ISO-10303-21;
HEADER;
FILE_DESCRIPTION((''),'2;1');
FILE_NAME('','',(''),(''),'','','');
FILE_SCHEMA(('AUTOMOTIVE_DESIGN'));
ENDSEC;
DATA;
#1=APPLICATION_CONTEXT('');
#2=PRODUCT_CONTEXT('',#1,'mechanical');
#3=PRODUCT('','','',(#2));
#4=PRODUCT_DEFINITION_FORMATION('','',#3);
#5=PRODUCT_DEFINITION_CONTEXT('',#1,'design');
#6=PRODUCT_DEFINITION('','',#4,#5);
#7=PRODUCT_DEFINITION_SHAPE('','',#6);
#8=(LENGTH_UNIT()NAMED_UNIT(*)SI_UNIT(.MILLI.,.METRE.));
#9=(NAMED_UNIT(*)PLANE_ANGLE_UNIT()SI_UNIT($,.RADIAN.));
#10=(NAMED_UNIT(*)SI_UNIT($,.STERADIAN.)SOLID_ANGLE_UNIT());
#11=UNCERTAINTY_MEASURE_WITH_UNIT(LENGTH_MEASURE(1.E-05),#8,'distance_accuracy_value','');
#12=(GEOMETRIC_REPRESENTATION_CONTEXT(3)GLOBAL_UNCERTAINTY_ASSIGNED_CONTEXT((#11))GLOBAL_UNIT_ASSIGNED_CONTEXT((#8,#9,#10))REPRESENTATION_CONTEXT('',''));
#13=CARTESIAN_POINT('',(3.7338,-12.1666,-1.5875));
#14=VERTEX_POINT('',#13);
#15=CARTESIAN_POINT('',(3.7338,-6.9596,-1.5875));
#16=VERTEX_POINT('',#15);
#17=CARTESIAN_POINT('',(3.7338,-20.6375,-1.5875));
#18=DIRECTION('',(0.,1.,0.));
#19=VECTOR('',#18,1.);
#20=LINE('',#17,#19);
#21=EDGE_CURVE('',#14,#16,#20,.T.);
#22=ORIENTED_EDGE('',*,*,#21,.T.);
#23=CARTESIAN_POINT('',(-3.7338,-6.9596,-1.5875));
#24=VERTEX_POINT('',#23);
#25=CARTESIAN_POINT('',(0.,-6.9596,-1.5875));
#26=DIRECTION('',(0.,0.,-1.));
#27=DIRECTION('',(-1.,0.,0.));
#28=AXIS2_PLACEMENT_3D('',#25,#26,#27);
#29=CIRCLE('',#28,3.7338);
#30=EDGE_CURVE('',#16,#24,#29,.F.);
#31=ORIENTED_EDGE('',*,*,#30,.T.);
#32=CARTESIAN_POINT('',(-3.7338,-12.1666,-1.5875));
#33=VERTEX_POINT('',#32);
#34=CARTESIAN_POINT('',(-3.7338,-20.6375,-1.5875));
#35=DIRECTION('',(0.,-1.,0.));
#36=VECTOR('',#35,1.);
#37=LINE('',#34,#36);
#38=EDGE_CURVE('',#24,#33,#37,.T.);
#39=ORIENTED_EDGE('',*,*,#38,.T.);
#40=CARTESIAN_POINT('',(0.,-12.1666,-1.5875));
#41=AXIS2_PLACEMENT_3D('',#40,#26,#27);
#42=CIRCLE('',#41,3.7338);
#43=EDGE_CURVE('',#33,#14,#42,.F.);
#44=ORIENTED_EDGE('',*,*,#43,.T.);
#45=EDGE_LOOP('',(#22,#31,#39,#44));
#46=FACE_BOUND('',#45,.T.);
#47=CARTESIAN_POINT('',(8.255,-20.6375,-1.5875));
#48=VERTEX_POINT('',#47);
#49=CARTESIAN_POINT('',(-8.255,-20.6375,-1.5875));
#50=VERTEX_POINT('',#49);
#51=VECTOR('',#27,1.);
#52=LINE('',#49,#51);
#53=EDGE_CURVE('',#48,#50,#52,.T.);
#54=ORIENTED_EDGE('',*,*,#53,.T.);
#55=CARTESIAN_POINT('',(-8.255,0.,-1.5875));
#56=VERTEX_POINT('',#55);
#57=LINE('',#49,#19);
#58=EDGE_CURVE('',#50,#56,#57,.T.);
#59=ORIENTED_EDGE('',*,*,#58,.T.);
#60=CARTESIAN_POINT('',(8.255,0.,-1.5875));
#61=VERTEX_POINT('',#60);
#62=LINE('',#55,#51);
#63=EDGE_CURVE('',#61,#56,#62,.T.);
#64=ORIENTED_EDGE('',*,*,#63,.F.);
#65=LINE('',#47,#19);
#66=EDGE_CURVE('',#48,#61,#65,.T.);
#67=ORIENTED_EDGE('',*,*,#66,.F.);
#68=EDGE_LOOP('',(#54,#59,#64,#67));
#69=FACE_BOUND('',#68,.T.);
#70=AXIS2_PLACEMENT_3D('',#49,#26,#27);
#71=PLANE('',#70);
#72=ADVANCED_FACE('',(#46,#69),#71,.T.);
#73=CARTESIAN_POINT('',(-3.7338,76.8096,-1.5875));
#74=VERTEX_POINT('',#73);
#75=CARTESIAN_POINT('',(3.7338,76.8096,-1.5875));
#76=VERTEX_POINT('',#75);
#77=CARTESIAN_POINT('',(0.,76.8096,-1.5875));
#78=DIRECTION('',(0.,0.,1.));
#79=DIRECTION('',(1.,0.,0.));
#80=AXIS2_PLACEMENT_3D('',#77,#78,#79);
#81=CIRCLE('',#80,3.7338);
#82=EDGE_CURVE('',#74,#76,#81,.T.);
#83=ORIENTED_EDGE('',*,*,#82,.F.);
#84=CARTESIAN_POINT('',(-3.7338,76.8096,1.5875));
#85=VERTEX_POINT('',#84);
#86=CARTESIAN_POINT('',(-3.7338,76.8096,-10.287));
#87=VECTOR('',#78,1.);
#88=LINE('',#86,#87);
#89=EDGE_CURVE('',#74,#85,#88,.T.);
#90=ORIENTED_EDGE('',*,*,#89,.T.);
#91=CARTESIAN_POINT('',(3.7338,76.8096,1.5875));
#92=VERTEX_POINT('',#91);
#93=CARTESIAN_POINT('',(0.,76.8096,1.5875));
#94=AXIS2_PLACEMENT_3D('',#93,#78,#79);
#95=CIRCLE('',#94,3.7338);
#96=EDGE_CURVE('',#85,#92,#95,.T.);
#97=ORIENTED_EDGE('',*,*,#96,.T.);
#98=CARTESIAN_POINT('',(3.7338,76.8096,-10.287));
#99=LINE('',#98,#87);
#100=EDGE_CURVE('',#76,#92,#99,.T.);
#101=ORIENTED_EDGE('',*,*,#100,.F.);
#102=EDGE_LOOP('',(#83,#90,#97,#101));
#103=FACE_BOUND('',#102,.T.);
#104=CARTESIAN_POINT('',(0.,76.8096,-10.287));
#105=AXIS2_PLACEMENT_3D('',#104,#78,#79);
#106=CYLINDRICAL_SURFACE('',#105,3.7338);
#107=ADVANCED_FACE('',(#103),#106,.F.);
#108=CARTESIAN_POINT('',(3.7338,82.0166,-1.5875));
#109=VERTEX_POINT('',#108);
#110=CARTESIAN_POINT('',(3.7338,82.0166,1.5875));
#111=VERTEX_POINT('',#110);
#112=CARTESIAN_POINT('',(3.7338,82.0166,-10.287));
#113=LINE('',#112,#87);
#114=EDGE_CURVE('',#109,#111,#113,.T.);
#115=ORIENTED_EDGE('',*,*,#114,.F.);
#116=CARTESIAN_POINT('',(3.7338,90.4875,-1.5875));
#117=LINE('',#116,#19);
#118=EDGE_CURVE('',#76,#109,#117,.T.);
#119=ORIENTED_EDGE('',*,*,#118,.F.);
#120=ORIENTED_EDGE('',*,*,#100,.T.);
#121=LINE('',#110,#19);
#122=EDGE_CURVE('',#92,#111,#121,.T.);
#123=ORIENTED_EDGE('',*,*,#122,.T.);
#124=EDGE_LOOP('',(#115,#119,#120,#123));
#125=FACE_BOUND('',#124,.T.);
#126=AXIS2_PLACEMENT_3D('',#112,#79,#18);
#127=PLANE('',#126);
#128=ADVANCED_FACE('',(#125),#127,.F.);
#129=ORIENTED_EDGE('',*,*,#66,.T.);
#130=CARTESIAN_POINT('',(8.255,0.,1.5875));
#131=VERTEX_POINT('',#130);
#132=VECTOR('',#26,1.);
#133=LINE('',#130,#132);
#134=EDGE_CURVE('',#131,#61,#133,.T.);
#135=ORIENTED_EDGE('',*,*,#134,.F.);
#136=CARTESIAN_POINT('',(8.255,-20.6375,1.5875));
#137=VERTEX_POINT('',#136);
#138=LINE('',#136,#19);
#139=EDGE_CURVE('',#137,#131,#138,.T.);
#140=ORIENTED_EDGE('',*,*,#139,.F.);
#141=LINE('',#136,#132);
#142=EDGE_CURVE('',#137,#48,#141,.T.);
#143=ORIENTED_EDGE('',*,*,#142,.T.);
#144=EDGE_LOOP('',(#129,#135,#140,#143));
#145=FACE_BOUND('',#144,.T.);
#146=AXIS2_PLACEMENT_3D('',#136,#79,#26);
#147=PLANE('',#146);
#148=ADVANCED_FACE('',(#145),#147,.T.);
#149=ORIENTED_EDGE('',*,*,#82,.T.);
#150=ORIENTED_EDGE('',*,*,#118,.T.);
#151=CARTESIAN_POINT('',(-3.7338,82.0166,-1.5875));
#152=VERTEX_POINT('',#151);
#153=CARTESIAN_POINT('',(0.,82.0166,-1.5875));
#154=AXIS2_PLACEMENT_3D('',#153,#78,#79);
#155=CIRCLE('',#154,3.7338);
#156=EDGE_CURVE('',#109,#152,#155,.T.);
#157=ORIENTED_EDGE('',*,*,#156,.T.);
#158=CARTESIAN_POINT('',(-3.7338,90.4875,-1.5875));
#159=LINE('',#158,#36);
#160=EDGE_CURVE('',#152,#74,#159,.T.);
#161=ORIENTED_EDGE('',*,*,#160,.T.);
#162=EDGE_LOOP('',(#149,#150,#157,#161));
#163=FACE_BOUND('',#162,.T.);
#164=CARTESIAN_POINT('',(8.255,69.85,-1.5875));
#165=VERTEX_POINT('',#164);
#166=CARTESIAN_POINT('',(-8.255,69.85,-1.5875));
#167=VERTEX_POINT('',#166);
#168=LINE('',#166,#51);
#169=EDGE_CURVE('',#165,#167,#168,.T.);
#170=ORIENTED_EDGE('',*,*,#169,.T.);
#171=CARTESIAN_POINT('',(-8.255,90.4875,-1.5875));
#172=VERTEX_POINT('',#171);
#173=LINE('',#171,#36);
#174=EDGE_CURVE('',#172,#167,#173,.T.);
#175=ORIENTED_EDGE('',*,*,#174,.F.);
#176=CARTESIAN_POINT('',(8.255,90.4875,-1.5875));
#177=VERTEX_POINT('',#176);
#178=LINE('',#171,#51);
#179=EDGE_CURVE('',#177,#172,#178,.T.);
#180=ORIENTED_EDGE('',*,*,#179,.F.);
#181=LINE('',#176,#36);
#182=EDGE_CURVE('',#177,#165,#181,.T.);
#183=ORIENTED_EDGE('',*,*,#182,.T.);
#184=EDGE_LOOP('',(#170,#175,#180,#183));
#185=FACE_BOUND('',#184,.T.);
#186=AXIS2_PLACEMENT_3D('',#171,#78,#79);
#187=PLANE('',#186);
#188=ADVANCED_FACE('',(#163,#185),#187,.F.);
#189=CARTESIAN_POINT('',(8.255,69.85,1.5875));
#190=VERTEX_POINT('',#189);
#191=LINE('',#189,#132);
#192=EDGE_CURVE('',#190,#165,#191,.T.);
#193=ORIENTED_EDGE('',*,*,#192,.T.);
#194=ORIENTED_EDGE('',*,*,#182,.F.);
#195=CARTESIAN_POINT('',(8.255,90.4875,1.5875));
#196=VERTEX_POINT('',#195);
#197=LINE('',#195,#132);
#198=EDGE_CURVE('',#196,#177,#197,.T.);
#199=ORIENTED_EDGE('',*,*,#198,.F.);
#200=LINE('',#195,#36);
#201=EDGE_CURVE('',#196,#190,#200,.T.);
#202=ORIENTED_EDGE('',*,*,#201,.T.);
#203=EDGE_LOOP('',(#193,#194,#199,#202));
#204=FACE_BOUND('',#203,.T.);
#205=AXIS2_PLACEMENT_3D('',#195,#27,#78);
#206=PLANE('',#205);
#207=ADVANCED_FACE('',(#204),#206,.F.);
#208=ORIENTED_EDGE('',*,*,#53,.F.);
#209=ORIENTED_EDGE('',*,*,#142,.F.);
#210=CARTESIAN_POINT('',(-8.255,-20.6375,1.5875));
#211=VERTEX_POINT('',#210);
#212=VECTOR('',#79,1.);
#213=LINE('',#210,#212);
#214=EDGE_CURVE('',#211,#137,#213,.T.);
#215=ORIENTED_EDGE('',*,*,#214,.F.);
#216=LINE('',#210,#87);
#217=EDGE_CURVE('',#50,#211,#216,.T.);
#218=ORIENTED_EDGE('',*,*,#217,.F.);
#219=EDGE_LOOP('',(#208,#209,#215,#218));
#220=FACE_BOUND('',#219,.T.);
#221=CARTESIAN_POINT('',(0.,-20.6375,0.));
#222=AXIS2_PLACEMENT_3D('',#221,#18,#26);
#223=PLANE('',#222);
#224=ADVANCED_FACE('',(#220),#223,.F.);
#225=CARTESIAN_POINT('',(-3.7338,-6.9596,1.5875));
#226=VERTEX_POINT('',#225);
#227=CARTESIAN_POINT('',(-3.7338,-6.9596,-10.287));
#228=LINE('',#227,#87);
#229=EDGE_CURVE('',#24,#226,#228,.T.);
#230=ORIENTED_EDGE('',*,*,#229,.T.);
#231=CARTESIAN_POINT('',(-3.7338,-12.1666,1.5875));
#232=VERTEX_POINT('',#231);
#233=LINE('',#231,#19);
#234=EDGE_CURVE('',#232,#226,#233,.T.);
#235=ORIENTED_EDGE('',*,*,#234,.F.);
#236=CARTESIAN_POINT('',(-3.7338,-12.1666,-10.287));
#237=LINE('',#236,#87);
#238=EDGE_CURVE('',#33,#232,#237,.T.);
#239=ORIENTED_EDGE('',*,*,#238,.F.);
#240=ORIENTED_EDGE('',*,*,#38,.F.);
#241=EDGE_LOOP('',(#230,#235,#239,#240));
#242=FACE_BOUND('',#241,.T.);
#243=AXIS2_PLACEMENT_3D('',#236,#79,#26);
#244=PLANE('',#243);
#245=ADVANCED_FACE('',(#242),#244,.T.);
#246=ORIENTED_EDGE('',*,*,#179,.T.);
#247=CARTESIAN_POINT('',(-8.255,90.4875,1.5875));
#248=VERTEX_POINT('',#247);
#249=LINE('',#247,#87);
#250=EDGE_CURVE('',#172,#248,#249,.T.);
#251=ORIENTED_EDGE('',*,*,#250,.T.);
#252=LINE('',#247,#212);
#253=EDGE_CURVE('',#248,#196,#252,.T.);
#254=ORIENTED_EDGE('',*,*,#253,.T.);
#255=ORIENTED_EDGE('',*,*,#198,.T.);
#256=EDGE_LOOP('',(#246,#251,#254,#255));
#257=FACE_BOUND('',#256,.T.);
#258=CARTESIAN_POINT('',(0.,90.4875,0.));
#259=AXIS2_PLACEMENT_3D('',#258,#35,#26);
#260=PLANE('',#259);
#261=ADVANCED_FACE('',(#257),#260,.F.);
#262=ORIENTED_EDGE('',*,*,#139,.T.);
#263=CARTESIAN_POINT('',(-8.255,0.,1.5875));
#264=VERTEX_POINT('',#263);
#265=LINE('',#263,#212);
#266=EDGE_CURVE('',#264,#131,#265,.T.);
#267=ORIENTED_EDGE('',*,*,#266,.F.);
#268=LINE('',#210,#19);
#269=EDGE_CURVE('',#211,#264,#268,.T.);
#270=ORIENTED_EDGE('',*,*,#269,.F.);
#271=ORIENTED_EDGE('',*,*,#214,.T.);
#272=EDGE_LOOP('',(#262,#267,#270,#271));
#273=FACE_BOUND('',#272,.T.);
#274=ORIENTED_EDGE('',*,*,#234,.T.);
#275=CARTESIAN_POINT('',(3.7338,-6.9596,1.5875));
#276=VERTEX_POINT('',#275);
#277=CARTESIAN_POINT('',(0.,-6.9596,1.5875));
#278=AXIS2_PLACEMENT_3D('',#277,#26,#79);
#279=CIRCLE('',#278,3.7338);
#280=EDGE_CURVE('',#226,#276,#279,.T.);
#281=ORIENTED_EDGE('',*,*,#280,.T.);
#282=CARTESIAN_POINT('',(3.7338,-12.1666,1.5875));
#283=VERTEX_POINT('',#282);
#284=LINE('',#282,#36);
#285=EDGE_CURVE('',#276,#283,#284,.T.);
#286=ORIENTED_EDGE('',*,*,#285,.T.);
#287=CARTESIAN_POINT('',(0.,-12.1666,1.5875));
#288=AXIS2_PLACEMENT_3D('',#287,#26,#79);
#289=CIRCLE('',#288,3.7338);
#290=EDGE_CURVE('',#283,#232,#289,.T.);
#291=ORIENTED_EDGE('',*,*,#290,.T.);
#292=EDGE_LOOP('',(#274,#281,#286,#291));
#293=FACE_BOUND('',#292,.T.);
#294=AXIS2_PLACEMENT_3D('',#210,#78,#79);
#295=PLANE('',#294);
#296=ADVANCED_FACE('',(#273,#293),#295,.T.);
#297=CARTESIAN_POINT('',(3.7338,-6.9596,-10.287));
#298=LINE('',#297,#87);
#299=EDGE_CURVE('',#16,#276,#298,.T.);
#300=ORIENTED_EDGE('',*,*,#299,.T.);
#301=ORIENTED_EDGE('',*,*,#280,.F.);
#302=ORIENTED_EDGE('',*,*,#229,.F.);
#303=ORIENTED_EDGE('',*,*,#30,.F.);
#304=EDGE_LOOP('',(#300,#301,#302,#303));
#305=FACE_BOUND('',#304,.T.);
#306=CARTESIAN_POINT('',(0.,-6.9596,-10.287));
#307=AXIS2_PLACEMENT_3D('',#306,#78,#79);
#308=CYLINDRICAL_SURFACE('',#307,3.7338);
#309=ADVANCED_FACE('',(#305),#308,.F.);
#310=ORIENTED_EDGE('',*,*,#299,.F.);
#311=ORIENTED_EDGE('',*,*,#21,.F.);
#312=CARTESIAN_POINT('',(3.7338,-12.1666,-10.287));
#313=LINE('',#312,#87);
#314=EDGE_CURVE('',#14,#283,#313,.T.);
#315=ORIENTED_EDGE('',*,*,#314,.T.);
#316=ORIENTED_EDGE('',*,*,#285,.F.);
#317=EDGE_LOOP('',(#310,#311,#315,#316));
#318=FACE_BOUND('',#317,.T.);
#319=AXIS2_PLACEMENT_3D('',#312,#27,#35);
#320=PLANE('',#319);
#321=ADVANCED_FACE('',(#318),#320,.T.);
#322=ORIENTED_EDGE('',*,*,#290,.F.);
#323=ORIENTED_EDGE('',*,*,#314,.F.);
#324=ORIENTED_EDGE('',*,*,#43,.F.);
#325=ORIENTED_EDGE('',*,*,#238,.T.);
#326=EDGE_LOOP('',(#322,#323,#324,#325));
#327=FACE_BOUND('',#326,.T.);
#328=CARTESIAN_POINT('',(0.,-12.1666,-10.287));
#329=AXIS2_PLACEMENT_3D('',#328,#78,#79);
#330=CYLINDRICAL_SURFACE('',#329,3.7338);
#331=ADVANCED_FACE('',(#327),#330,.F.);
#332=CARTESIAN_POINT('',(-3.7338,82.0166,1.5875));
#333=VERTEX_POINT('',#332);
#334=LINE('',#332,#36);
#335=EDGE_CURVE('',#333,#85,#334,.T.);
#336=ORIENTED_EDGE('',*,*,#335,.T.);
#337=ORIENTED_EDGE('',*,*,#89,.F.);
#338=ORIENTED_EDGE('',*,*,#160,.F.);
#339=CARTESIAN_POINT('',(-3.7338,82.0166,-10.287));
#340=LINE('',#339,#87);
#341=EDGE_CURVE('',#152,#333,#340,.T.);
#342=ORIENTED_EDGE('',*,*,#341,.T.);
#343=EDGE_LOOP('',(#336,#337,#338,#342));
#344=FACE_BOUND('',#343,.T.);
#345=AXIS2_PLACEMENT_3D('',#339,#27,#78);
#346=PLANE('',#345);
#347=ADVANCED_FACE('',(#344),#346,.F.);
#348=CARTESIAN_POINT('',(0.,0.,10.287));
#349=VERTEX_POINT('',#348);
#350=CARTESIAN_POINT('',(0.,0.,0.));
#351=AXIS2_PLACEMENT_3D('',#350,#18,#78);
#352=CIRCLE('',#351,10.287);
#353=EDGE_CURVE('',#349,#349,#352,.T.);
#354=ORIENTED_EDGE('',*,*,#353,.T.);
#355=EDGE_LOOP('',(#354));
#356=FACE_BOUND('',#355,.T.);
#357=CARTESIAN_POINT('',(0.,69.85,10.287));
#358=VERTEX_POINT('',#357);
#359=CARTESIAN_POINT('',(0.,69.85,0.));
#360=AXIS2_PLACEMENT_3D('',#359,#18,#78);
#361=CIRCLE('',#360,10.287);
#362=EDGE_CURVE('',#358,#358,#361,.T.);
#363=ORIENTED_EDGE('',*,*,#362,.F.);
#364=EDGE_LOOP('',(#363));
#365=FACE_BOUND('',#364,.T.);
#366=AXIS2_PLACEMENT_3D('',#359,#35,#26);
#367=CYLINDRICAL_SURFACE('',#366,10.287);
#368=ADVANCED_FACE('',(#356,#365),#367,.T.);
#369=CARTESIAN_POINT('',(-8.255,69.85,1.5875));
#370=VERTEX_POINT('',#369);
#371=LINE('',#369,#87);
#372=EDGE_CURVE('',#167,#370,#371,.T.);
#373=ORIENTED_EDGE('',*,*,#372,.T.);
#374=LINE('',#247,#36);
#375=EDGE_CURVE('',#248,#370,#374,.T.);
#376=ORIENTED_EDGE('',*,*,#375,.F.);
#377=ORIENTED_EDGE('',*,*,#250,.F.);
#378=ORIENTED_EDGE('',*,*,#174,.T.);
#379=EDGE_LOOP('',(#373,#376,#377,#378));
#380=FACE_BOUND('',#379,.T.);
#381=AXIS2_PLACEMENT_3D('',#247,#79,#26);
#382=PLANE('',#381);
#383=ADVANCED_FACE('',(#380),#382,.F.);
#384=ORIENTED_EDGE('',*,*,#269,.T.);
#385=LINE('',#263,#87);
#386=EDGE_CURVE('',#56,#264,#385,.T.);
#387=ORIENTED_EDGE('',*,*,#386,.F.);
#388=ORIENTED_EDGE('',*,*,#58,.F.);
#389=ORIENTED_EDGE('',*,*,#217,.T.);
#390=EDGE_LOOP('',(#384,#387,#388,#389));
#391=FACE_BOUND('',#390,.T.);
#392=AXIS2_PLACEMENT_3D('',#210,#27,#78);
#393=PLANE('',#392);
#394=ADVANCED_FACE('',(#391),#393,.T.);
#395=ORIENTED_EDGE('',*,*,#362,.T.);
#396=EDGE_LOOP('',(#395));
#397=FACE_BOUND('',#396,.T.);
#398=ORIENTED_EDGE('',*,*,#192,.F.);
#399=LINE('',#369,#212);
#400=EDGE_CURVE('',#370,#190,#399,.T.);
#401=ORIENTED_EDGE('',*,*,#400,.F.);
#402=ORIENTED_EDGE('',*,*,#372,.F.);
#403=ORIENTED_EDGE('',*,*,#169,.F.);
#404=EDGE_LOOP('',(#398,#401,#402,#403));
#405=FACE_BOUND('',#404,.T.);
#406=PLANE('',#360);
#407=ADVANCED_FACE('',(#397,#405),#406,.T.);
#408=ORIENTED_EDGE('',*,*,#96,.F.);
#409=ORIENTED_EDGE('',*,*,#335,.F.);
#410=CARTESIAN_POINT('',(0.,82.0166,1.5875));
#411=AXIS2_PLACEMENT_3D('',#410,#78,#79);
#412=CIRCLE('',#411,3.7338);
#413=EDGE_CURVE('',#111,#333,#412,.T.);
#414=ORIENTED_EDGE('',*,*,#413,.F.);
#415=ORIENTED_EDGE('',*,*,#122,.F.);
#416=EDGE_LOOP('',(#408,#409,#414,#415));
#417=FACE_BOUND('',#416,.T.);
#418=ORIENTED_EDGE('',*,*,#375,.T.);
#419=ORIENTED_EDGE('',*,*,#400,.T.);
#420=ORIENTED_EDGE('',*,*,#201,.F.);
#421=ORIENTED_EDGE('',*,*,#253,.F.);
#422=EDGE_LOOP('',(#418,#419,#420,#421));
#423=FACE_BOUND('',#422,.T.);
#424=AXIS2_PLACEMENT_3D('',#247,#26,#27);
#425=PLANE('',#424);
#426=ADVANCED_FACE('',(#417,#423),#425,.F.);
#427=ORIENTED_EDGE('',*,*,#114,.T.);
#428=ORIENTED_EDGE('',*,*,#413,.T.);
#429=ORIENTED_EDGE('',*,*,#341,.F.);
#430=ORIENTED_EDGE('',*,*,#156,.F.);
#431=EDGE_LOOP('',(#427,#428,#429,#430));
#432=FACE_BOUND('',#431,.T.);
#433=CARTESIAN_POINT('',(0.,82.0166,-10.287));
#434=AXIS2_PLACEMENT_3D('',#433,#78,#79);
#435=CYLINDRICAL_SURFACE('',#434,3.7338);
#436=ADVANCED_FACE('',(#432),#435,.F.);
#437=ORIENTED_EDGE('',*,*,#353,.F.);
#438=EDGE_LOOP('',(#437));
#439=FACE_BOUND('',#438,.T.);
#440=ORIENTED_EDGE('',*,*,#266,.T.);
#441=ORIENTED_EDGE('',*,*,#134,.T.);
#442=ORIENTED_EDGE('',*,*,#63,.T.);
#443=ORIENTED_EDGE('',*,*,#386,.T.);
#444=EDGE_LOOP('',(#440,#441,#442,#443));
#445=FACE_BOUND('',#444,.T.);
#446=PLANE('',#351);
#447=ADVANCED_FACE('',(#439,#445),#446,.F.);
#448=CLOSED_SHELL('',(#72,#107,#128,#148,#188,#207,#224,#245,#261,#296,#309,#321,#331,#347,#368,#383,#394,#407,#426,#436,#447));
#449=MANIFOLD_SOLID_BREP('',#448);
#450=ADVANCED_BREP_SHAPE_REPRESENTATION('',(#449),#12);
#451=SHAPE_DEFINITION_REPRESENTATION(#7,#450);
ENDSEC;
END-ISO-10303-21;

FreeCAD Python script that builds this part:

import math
import FreeCAD as App
import Part
import Sketcher

V = App.Vector
Q = App.Units.Quantity

doc = App.newDocument("Part")
body = doc.addObject("PartDesign::Body", "Body")

# Sketch on XZ plane
sketch1 = doc.addObject("Sketcher::SketchObject", "Sketch")
body.addObject(sketch1)
sketch1.AttachmentSupport = (doc.XZ_Plane, [""])
sketch1.MapMode = "FlatFace"
sketch1.addGeometry(Part.Circle(V(0, 0, 0), V(0, 0, 1), 10.287), False)
sketch1.addConstraint([
    Sketcher.Constraint("Coincident", 0, 3, -1, 1),
    Sketcher.Constraint("Diameter", 0, Q("0.81 in")),
])
pad1 = doc.addObject("PartDesign::Pad", "Pad")
body.addObject(pad1)
pad1.Profile = sketch1
pad1.Length = Q("2.75 in")
pad1.Reversed = True

# Sketch on XZ plane
sketch2 = doc.addObject("Sketcher::SketchObject", "Sketch001")
body.addObject(sketch2)
sketch2.AttachmentSupport = (doc.XZ_Plane, [""])
sketch2.MapMode = "FlatFace"
sketch2.AttachmentOffset = App.Placement(V(0, 0, -2.75 * 25.4), App.Rotation())
sketch2.addGeometry([
    Part.LineSegment(V(-8.255, -1.5875, 0), V(-8.255, 1.5875, 0)),
    Part.LineSegment(V(-8.255, 1.5875, 0), V(8.255, 1.5875, 0)),
    Part.LineSegment(V(8.255, 1.5875, 0), V(8.255, -1.5875, 0)),
    Part.LineSegment(V(8.255, -1.5875, 0), V(-8.255, -1.5875, 0)),
], False)
sketch2.addConstraint([
    Sketcher.Constraint("Coincident", 0, 2, 1, 1),
    Sketcher.Constraint("Coincident", 1, 2, 2, 1),
    Sketcher.Constraint("Coincident", 2, 2, 3, 1),
    Sketcher.Constraint("Coincident", 3, 2, 0, 1),
    Sketcher.Constraint("Vertical", 0),
    Sketcher.Constraint("Horizontal", 1),
    Sketcher.Constraint("Vertical", 2),
    Sketcher.Constraint("Horizontal", 3),
    Sketcher.Constraint("Symmetric", 0, 2, 2, 2, -1, 1),
    Sketcher.Constraint("DistanceX", 1, 1, 1, 2, Q("0.65 in")),
    Sketcher.Constraint("DistanceY", 0, 1, 0, 2, Q("0.125 in")),
])
pad2 = doc.addObject("PartDesign::Pad", "Pad001")
body.addObject(pad2)
pad2.Profile = sketch2
pad2.Length = Q("0.8125 in")
pad2.Reversed = True

# Sketch on XY plane
sketch3 = doc.addObject("Sketcher::SketchObject", "Sketch002")
body.addObject(sketch3)
sketch3.AttachmentSupport = (doc.XY_Plane, [""])
sketch3.MapMode = "FlatFace"
sketch3.AttachmentOffset = App.Placement(V(0, 0, 0.0625 * 25.4), App.Rotation())
sketch3.addGeometry([
    Part.LineSegment(V(3.7338, 76.8096, 0), V(3.7338, 82.0166, 0)),
    Part.ArcOfCircle(Part.Circle(V(0, 82.0166, 0), V(0, 0, 1), 3.7338), math.radians(0), math.radians(180)),
    Part.LineSegment(V(-3.7338, 82.0166, 0), V(-3.7338, 76.8096, 0)),
    Part.ArcOfCircle(Part.Circle(V(0, 76.8096, 0), V(0, 0, 1), 3.7338), math.radians(180), math.radians(360)),
], False)
sketch3.addConstraint([
    Sketcher.Constraint("Tangent", 0, 2, 1, 1),
    Sketcher.Constraint("Tangent", 1, 2, 2, 1),
    Sketcher.Constraint("Tangent", 2, 2, 3, 1),
    Sketcher.Constraint("Tangent", 3, 2, 0, 1),
    Sketcher.Constraint("Vertical", 0),
    Sketcher.Constraint("Vertical", 2),
    Sketcher.Constraint("PointOnObject", 1, 3, -2),
    Sketcher.Constraint("Radius", 1, Q("0.147 in")),
    Sketcher.Constraint("DistanceY", 0, 1, 0, 2, Q("0.205 in")),
    Sketcher.Constraint("DistanceY", -1, 1, 1, 3, Q("3.229 in")),
])
pocket1 = doc.addObject("PartDesign::Pocket", "Pocket")
body.addObject(pocket1)
pocket1.Profile = sketch3
pocket1.Type = "ThroughAll"
doc.recompute()

datumplane = doc.addObject("PartDesign::Plane", "DatumPlane")
body.addObject(datumplane)
datumplane.AttachmentSupport = (doc.XZ_Plane, [""])
datumplane.MapMode = "FlatFace"
datumplane.AttachmentOffset = App.Placement(V(0, 0, -1.375 * 25.4), App.Rotation())
mirrored = doc.addObject("PartDesign::Mirrored", "Mirrored")
body.addObject(mirrored)
mirrored.Originals = [pad2, pocket1]
mirrored.MirrorPlane = (datumplane, [""])
body.Tip = mirrored

doc.recompute()
